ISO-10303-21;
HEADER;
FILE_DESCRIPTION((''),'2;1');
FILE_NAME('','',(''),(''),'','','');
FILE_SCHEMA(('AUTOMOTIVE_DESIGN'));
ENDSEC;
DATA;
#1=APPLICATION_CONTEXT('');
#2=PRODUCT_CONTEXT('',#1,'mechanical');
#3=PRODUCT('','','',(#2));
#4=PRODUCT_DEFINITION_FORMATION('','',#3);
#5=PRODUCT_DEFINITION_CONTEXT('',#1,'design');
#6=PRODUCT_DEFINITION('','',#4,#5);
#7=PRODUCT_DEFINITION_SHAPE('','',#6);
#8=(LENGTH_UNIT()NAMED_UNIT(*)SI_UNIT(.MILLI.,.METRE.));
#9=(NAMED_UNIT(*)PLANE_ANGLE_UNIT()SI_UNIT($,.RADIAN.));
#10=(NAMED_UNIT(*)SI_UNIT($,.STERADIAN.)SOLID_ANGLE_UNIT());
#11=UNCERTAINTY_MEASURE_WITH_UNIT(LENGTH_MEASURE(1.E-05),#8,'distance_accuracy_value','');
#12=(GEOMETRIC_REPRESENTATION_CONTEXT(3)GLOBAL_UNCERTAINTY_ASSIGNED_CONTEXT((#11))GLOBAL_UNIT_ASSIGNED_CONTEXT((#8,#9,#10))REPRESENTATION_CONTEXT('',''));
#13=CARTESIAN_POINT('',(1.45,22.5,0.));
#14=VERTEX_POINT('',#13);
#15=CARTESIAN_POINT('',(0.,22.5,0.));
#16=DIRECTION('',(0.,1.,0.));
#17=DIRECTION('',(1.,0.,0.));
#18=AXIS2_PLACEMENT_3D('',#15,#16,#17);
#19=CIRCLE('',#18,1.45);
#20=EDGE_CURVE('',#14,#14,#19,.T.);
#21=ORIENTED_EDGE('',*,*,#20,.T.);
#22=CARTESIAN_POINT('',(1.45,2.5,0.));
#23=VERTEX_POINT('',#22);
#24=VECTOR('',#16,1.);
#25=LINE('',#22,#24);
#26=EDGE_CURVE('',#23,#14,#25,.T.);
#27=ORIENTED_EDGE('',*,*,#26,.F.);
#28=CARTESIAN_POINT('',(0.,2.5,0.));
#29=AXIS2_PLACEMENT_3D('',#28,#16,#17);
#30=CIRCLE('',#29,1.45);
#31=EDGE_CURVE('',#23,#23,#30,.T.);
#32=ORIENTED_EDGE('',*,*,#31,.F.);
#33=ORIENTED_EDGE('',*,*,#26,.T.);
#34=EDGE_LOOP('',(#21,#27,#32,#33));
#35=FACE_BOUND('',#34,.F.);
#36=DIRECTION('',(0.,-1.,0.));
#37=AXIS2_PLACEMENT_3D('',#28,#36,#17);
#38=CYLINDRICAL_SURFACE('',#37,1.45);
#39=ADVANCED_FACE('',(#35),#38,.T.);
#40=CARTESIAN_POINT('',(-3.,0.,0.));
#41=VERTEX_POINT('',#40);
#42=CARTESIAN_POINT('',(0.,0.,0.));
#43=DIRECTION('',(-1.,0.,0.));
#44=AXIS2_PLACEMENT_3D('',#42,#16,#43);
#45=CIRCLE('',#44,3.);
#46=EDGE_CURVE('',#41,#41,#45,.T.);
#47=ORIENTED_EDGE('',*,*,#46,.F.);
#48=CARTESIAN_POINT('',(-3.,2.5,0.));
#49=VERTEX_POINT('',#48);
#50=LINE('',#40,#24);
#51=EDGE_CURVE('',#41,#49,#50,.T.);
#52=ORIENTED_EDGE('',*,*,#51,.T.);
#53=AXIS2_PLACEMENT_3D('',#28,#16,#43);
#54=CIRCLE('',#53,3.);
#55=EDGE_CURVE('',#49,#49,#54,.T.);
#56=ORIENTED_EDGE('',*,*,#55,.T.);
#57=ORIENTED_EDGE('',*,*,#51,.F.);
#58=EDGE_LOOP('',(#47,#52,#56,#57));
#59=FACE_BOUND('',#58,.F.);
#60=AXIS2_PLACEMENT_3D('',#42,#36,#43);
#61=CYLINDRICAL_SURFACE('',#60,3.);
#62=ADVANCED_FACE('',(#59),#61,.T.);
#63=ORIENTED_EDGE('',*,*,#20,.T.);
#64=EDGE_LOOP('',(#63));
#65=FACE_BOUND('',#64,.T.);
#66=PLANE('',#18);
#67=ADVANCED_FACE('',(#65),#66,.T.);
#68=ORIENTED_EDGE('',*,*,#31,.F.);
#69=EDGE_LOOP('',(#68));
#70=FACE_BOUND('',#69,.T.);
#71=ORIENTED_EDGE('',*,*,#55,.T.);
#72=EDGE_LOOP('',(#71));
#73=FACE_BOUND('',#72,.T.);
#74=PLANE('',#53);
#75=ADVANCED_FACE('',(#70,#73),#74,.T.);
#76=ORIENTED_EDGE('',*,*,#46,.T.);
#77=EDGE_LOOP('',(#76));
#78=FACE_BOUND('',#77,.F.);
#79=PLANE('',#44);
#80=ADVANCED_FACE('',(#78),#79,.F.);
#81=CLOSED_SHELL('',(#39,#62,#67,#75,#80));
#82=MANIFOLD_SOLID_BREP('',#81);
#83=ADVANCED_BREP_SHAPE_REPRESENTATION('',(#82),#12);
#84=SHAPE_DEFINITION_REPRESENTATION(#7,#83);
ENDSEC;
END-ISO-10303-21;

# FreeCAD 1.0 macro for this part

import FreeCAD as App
import Part
import Sketcher
from FreeCAD import Vector

doc = App.newDocument("Part")
params = doc.addObject("Spreadsheet::Sheet", "Params")
for row, (alias, value) in enumerate([
    ("sketch1_diameter", "6 mm"),
    ("pad1_length", "2.5 mm"),
    ("sketch2_diameter", "2.9 mm"),
    ("pad2_length", "20 mm"),
], start=1):
    params.set(f"A{row}", alias)
    params.set(f"B{row}", "=" + value)
    params.setAlias(f"B{row}", alias)

body = doc.addObject("PartDesign::Body", "Body")

# Sketch on XZ plane
sketch1 = body.newObject("Sketcher::SketchObject", "Sketch")
sketch1.AttachmentSupport = (doc.getObject("XZ_Plane"), [""])
sketch1.MapMode = "FlatFace"
sketch1.addGeometry(Part.Circle(Vector(0, 0, 0), Vector(0, 0, 1), 3), False)
sketch1.addConstraint(Sketcher.Constraint("Coincident", 0, 3, -1, 1))
sketch1.addConstraint(Sketcher.Constraint("Diameter", 0, 6.0))
sketch1.setExpression("Constraints[1]", "Params.sketch1_diameter")
pad1 = body.newObject("PartDesign::Pad", "Pad")
pad1.Profile = sketch1
pad1.setExpression("Length", "Params.pad1_length")
pad1.Reversed = True

# Sketch on XZ plane
sketch2 = body.newObject("Sketcher::SketchObject", "Sketch001")
sketch2.AttachmentSupport = (doc.getObject("XZ_Plane"), [""])
sketch2.MapMode = "FlatFace"
sketch2.AttachmentOffset = App.Placement(Vector(0, 0, -2.5), App.Rotation())
sketch2.addGeometry(Part.Circle(Vector(0, 0, 0), Vector(0, 0, 1), 1.4), False)
sketch2.addConstraint(Sketcher.Constraint("Coincident", 0, 3, -1, 1))
sketch2.addConstraint(Sketcher.Constraint("Diameter", 0, 2.9))
sketch2.setExpression("Constraints[1]", "Params.sketch2_diameter")
pad2 = body.newObject("PartDesign::Pad", "Pad001")
pad2.Profile = sketch2
pad2.setExpression("Length", "Params.pad2_length")
pad2.Reversed = True

doc.recompute()
